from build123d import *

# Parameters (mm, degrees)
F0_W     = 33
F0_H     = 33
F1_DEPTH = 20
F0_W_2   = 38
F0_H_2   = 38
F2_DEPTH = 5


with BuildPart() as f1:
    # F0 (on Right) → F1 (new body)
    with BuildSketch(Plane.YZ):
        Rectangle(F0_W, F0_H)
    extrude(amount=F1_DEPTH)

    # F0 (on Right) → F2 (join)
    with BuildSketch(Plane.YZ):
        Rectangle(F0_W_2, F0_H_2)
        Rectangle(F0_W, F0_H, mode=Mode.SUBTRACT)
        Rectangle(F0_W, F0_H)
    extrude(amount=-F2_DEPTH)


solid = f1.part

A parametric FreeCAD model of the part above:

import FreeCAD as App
import Part
import Sketcher
from FreeCAD import Vector


def add_polygon(sketch, points):
    """Adds a closed chain of lines whose ends are joined by coincident constraints."""
    first, n = sketch.GeometryCount, len(points)
    for a, b in zip(points, points[1:] + points[:1]):
        sketch.addGeometry(Part.LineSegment(App.Vector(*a, 0), App.Vector(*b, 0)), False)
    for i in range(n):
        sketch.addConstraint(Sketcher.Constraint("Coincident", first + i, 2, first + (i + 1) % n, 1))

doc = App.newDocument("Part")
params = doc.addObject("Spreadsheet::Sheet", "Params")
for row, (alias, value) in enumerate([
    ("sketch1_width", "33 mm"),
    ("pad1_length", "20 mm"),
    ("sketch2_width", "38 mm"),
    ("pad2_length", "5 mm"),
], start=1):
    params.set(f"A{row}", alias)
    params.set(f"B{row}", "=" + value)
    params.setAlias(f"B{row}", alias)

body = doc.addObject("PartDesign::Body", "Body")

sketch1 = body.newObject("Sketcher::SketchObject", "Sketch")
sketch1.AttachmentSupport = (doc.getObject("YZ_Plane"), [""])
sketch1.MapMode = "FlatFace"
add_polygon(sketch1, [(-16, 16), (-16, -16), (16, -16), (16, 16)])
sketch1.addConstraint([
    Sketcher.Constraint("Vertical", 0),
    Sketcher.Constraint("Horizontal", 1),
    Sketcher.Constraint("Vertical", 2),
    Sketcher.Constraint("Horizontal", 3),
    Sketcher.Constraint("Symmetric", 0, 2, 2, 2, -1, 1),
    Sketcher.Constraint("Equal", 3, 0),
    Sketcher.Constraint("DistanceX", 1, 1, 1, 2, 33.0),
])
sketch1.setExpression("Constraints[10]", "Params.sketch1_width")
pad1 = body.newObject("PartDesign::Pad", "Pad")
pad1.Profile = sketch1
pad1.setExpression("Length", "Params.pad1_length")

sketch2 = body.newObject("Sketcher::SketchObject", "Sketch001")
sketch2.AttachmentSupport = (doc.getObject("YZ_Plane"), [""])
sketch2.MapMode = "FlatFace"
add_polygon(sketch2, [(-19, 19), (-19, -19), (19, -19), (19, 19)])
sketch2.addConstraint([
    Sketcher.Constraint("Vertical", 0),
    Sketcher.Constraint("Horizontal", 1),
    Sketcher.Constraint("Vertical", 2),
    Sketcher.Constraint("Horizontal", 3),
    Sketcher.Constraint("Symmetric", 0, 2, 2, 2, -1, 1),
    Sketcher.Constraint("Equal", 3, 0),
    Sketcher.Constraint("DistanceX", 1, 1, 1, 2, 38.0),
])
sketch2.setExpression("Constraints[10]", "Params.sketch2_width")
pad2 = body.newObject("PartDesign::Pad", "Pad001")
pad2.Profile = sketch2
pad2.setExpression("Length", "Params.pad2_length")
pad2.Reversed = True

doc.recompute()
